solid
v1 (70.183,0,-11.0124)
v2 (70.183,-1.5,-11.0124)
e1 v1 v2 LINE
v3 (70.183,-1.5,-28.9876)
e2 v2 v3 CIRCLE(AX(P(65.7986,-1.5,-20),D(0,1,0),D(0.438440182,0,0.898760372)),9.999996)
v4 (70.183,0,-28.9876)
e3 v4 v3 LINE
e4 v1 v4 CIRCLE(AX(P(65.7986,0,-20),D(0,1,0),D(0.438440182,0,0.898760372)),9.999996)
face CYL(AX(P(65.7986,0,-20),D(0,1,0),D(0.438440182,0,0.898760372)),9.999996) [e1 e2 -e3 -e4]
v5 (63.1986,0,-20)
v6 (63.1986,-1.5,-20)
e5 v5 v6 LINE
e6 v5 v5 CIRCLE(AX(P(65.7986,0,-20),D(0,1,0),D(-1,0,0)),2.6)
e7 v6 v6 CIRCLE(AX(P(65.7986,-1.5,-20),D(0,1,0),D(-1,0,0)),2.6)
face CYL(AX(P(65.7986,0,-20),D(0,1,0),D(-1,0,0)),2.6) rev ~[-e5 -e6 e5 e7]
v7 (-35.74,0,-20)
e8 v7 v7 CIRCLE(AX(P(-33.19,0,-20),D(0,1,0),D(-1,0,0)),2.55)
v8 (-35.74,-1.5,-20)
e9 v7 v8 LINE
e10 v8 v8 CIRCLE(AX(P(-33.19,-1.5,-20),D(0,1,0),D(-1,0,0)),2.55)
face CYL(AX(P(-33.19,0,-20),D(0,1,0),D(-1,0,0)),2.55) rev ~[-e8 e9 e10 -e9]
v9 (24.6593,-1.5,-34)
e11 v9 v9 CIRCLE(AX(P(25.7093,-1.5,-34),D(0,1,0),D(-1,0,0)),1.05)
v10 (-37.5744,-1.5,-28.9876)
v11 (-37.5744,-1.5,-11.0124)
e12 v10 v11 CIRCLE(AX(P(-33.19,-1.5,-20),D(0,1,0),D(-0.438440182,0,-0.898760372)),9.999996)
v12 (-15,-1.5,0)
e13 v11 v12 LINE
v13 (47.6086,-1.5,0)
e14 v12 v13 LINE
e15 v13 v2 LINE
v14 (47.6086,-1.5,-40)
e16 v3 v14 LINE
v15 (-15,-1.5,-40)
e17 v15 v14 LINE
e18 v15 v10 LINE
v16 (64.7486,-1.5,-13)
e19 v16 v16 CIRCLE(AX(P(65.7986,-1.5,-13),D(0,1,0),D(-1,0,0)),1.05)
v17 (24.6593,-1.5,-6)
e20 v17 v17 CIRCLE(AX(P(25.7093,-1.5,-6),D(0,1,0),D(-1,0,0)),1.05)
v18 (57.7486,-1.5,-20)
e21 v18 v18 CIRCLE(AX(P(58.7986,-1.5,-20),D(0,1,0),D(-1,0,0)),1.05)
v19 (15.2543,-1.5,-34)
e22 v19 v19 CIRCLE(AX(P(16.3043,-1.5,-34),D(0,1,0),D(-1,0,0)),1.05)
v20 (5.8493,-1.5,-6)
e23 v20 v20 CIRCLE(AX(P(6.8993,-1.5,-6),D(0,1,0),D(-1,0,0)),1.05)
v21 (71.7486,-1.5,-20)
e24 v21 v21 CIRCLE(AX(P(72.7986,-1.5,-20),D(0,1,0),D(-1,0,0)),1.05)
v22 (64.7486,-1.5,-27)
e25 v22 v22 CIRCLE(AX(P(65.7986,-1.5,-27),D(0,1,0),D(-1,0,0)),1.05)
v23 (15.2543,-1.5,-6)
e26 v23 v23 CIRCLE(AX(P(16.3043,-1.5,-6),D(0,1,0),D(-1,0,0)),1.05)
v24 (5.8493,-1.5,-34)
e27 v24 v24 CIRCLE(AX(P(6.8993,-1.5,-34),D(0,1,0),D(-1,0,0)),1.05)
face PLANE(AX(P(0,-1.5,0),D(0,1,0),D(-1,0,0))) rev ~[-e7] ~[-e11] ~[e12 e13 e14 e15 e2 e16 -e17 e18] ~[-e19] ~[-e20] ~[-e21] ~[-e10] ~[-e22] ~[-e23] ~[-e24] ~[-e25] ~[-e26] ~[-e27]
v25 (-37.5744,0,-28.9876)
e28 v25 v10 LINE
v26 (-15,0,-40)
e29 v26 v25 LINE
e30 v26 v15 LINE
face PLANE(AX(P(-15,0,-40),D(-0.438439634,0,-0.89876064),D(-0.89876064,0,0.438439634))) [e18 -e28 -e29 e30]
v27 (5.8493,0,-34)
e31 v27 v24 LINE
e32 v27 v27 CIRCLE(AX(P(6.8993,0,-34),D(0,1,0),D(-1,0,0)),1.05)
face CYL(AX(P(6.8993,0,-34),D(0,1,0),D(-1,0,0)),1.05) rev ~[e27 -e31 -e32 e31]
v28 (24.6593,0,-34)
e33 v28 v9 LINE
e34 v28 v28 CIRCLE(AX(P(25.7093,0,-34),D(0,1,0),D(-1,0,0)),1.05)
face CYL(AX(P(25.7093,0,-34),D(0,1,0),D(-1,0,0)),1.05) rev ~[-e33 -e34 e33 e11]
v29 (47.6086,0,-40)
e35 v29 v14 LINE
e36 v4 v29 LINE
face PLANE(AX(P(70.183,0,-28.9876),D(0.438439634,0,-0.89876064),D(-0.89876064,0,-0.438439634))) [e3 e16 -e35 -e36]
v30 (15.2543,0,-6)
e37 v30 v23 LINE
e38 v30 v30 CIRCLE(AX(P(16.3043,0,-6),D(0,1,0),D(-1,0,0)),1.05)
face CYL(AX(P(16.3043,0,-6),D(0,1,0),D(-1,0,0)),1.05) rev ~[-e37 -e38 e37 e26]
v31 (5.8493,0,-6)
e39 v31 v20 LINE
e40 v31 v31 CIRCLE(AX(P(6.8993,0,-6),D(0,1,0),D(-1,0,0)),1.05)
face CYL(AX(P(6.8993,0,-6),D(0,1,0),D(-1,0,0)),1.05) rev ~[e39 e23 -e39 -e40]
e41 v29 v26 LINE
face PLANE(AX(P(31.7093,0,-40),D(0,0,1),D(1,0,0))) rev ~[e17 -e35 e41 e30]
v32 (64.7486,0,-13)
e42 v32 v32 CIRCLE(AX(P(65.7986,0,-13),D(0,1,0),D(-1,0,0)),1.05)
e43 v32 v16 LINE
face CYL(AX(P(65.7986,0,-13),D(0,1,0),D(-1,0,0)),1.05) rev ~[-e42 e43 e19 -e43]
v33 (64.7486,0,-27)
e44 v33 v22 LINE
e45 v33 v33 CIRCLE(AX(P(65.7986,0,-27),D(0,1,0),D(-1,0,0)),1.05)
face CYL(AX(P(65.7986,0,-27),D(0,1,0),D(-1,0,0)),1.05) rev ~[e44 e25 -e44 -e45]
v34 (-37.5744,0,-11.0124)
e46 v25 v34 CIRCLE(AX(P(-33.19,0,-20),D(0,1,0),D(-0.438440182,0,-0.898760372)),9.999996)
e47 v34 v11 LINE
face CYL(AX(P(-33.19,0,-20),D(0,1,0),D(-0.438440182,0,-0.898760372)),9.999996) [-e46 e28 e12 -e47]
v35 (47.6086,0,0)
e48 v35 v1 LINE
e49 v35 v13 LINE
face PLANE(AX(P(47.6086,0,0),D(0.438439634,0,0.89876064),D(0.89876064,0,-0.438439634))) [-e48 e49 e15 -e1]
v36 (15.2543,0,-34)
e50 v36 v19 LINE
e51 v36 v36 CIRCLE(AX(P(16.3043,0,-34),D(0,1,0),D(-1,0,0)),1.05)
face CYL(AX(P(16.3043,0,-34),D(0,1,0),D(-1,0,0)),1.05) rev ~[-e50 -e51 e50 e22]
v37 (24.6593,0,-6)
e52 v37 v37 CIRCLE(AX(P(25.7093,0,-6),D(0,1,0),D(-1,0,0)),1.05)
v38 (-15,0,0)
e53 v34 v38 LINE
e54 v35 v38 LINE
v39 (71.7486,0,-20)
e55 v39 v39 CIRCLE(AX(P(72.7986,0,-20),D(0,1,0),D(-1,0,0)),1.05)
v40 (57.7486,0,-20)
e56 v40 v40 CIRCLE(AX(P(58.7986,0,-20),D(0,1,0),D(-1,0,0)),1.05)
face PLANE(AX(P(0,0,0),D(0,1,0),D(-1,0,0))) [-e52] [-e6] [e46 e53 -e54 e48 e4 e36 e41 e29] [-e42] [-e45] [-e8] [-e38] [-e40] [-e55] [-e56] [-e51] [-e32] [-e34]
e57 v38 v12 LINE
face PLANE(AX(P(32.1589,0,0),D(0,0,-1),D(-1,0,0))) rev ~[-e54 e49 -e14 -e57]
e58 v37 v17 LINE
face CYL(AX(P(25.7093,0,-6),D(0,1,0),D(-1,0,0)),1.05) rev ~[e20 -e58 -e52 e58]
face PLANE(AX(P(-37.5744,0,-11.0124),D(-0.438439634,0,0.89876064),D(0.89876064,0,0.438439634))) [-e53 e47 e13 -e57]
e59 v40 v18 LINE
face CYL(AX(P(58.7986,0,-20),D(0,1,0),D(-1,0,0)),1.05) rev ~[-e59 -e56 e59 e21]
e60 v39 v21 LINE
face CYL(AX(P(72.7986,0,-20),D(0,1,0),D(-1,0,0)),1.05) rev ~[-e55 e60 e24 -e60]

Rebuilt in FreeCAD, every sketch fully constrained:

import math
import FreeCAD as App
import Part
import Sketcher

doc = App.newDocument("Part")
body = doc.addObject("PartDesign::Body", "Body")

sketch1 = body.newObject("Sketcher::SketchObject", "Sketch")
sketch1.AttachmentSupport = (doc.getObject("XZ_Plane"), [""])
sketch1.MapMode = "FlatFace"
sketch1.addGeometry(Part.LineSegment(App.Vector(47.6, 0, 0), App.Vector(70.2, -11, 0)), False)
sketch1.addGeometry(Part.ArcOfCircle(Part.Circle(App.Vector(65.8, -20, 0), App.Vector(0, 0, 1), 10), math.radians(-64), math.radians(64)), False)
sketch1.addGeometry(Part.LineSegment(App.Vector(70.2, -29, 0), App.Vector(47.6, -40, 0)), False)
sketch1.addGeometry(Part.LineSegment(App.Vector(47.6, -40, 0), App.Vector(-15, -40, 0)), False)
sketch1.addGeometry(Part.LineSegment(App.Vector(-15, -40, 0), App.Vector(-37.6, -29, 0)), False)
sketch1.addGeometry(Part.ArcOfCircle(Part.Circle(App.Vector(-33.2, -20, 0), App.Vector(0, 0, 1), 10), math.radians(116), math.radians(244)), False)
sketch1.addGeometry(Part.LineSegment(App.Vector(-37.6, -11, 0), App.Vector(-15, 0, 0)), False)
sketch1.addGeometry(Part.LineSegment(App.Vector(-15, 0, 0), App.Vector(47.6, 0, 0)), False)
sketch1.addGeometry(Part.Circle(App.Vector(6.9, -6, 0), App.Vector(0, 0, 1), 1.1), False)
sketch1.addGeometry(Part.Circle(App.Vector(25.7, -34, 0), App.Vector(0, 0, 1), 1.1), False)
sketch1.addGeometry(Part.Circle(App.Vector(16.3, -34, 0), App.Vector(0, 0, 1), 1.1), False)
sketch1.addGeometry(Part.Circle(App.Vector(6.9, -34, 0), App.Vector(0, 0, 1), 1.1), False)
sketch1.addGeometry(Part.Circle(App.Vector(25.7, -6, 0), App.Vector(0, 0, 1), 1.1), False)
sketch1.addGeometry(Part.Circle(App.Vector(16.3, -6, 0), App.Vector(0, 0, 1), 1.1), False)
sketch1.addGeometry(Part.Circle(App.Vector(65.8, -13, 0), App.Vector(0, 0, 1), 1.1), False)
sketch1.addGeometry(Part.Circle(App.Vector(65.8, -27, 0), App.Vector(0, 0, 1), 1.1), False)
sketch1.addGeometry(Part.Circle(App.Vector(72.8, -20, 0), App.Vector(0, 0, 1), 1.1), False)
sketch1.addGeometry(Part.Circle(App.Vector(65.8, -20, 0), App.Vector(0, 0, 1), 2.6), False)
sketch1.addGeometry(Part.Circle(App.Vector(58.8, -20, 0), App.Vector(0, 0, 1), 1.1), False)
sketch1.addGeometry(Part.Circle(App.Vector(-33.2, -20, 0), App.Vector(0, 0, 1), 2.5), False)
sketch1.addConstraint(Sketcher.Constraint("Tangent", 0, 2, 1, 2))
sketch1.addConstraint(Sketcher.Constraint("Tangent", 1, 1, 2, 1))
sketch1.addConstraint(Sketcher.Constraint("Coincident", 2, 2, 3, 1))
sketch1.addConstraint(Sketcher.Constraint("Coincident", 3, 2, 4, 1))
sketch1.addConstraint(Sketcher.Constraint("Tangent", 4, 2, 5, 2))
sketch1.addConstraint(Sketcher.Constraint("Tangent", 5, 1, 6, 1))
sketch1.addConstraint(Sketcher.Constraint("Coincident", 6, 2, 7, 1))
sketch1.addConstraint(Sketcher.Constraint("Coincident", 7, 2, 0, 1))
sketch1.addConstraint(Sketcher.Constraint("Horizontal", 3))
sketch1.addConstraint(Sketcher.Constraint("Horizontal", 7))
sketch1.addConstraint(Sketcher.Constraint("Coincident", 17, 3, 1, 3))
sketch1.addConstraint(Sketcher.Constraint("Coincident", 19, 3, 5, 3))
sketch1.addConstraint(Sketcher.Constraint("Equal", 1, 5))
sketch1.addConstraint(Sketcher.Constraint("Equal", 8, 9))
sketch1.addConstraint(Sketcher.Constraint("Equal", 9, 10))
sketch1.addConstraint(Sketcher.Constraint("Equal", 10, 11))
sketch1.addConstraint(Sketcher.Constraint("Equal", 11, 12))
sketch1.addConstraint(Sketcher.Constraint("Equal", 12, 13))
sketch1.addConstraint(Sketcher.Constraint("Equal", 13, 14))
sketch1.addConstraint(Sketcher.Constraint("Equal", 14, 15))
sketch1.addConstraint(Sketcher.Constraint("Equal", 15, 16))
sketch1.addConstraint(Sketcher.Constraint("Equal", 16, 18))
sketch1.addConstraint(Sketcher.Constraint("PointOnObject", 6, 2, -1))
sketch1.addConstraint(Sketcher.Constraint("Parallel", 0, 4))
sketch1.addConstraint(Sketcher.Constraint("Parallel", 2, 6))
sketch1.addConstraint(Sketcher.Constraint("Horizontal", 1, 3, 5, 3))
sketch1.addConstraint(Sketcher.Constraint("Horizontal", 9, 3, 10, 3))
sketch1.addConstraint(Sketcher.Constraint("Horizontal", 10, 3, 11, 3))
sketch1.addConstraint(Sketcher.Constraint("Horizontal", 8, 3, 12, 3))
sketch1.addConstraint(Sketcher.Constraint("Horizontal", 12, 3, 13, 3))
sketch1.addConstraint(Sketcher.Constraint("Horizontal", 5, 3, 16, 3))
sketch1.addConstraint(Sketcher.Constraint("Horizontal", 17, 3, 18, 3))
sketch1.addConstraint(Sketcher.Constraint("Horizontal", 1, 1, 4, 2))
sketch1.addConstraint(Sketcher.Constraint("Vertical", 8, 3, 11, 3))
sketch1.addConstraint(Sketcher.Constraint("Vertical", 9, 3, 12, 3))
sketch1.addConstraint(Sketcher.Constraint("Vertical", 10, 3, 13, 3))
sketch1.addConstraint(Sketcher.Constraint("Vertical", 1, 3, 14, 3))
sketch1.addConstraint(Sketcher.Constraint("Vertical", 14, 3, 15, 3))
sketch1.addConstraint(Sketcher.Constraint("Vertical", 3, 2, 6, 2))
sketch1.addConstraint(Sketcher.Constraint("Radius", 1, 10.0))
sketch1.addConstraint(Sketcher.Constraint("Diameter", 8, 2.1))
sketch1.addConstraint(Sketcher.Constraint("Diameter", 17, 5.2))
sketch1.addConstraint(Sketcher.Constraint("Diameter", 19, 5.1))
sketch1.addConstraint(Sketcher.Constraint("DistanceY", 1, 3, -1, 1, 20.0))
sketch1.addConstraint(Sketcher.Constraint("DistanceY", 8, 3, -1, 1, 6.0))
sketch1.addConstraint(Sketcher.Constraint("DistanceY", 9, 3, -1, 1, 34.0))
sketch1.addConstraint(Sketcher.Constraint("DistanceY", 14, 3, -1, 1, 13.0))
sketch1.addConstraint(Sketcher.Constraint("DistanceY", 15, 3, -1, 1, 27.0))
sketch1.addConstraint(Sketcher.Constraint("DistanceX", 3, 2, -1, 1, 15.0))
sketch1.addConstraint(Sketcher.Constraint("DistanceX", 1, 3, 16, 3, 7.0))
sketch1.addConstraint(Sketcher.Constraint("DistanceX", 18, 3, 1, 3, 7.0))
sketch1.addConstraint(Sketcher.Constraint("DistanceX", 5, 3, -1, 1, 33.19))
sketch1.addConstraint(Sketcher.Constraint("DistanceX", 8, 3, 9, 3, 18.81))
sketch1.addConstraint(Sketcher.Constraint("DistanceX", 3, 2, 3, 1, 62.6086))
sketch1.addConstraint(Sketcher.Constraint("DistanceX", 10, 3, 9, 3, 9.405))
sketch1.addConstraint(Sketcher.Constraint("DistanceX", -1, 1, 8, 3, 6.8993))
pad1 = body.newObject("PartDesign::Pad", "Pad")
pad1.Profile = sketch1
pad1.Length = 1.5

doc.recompute()
